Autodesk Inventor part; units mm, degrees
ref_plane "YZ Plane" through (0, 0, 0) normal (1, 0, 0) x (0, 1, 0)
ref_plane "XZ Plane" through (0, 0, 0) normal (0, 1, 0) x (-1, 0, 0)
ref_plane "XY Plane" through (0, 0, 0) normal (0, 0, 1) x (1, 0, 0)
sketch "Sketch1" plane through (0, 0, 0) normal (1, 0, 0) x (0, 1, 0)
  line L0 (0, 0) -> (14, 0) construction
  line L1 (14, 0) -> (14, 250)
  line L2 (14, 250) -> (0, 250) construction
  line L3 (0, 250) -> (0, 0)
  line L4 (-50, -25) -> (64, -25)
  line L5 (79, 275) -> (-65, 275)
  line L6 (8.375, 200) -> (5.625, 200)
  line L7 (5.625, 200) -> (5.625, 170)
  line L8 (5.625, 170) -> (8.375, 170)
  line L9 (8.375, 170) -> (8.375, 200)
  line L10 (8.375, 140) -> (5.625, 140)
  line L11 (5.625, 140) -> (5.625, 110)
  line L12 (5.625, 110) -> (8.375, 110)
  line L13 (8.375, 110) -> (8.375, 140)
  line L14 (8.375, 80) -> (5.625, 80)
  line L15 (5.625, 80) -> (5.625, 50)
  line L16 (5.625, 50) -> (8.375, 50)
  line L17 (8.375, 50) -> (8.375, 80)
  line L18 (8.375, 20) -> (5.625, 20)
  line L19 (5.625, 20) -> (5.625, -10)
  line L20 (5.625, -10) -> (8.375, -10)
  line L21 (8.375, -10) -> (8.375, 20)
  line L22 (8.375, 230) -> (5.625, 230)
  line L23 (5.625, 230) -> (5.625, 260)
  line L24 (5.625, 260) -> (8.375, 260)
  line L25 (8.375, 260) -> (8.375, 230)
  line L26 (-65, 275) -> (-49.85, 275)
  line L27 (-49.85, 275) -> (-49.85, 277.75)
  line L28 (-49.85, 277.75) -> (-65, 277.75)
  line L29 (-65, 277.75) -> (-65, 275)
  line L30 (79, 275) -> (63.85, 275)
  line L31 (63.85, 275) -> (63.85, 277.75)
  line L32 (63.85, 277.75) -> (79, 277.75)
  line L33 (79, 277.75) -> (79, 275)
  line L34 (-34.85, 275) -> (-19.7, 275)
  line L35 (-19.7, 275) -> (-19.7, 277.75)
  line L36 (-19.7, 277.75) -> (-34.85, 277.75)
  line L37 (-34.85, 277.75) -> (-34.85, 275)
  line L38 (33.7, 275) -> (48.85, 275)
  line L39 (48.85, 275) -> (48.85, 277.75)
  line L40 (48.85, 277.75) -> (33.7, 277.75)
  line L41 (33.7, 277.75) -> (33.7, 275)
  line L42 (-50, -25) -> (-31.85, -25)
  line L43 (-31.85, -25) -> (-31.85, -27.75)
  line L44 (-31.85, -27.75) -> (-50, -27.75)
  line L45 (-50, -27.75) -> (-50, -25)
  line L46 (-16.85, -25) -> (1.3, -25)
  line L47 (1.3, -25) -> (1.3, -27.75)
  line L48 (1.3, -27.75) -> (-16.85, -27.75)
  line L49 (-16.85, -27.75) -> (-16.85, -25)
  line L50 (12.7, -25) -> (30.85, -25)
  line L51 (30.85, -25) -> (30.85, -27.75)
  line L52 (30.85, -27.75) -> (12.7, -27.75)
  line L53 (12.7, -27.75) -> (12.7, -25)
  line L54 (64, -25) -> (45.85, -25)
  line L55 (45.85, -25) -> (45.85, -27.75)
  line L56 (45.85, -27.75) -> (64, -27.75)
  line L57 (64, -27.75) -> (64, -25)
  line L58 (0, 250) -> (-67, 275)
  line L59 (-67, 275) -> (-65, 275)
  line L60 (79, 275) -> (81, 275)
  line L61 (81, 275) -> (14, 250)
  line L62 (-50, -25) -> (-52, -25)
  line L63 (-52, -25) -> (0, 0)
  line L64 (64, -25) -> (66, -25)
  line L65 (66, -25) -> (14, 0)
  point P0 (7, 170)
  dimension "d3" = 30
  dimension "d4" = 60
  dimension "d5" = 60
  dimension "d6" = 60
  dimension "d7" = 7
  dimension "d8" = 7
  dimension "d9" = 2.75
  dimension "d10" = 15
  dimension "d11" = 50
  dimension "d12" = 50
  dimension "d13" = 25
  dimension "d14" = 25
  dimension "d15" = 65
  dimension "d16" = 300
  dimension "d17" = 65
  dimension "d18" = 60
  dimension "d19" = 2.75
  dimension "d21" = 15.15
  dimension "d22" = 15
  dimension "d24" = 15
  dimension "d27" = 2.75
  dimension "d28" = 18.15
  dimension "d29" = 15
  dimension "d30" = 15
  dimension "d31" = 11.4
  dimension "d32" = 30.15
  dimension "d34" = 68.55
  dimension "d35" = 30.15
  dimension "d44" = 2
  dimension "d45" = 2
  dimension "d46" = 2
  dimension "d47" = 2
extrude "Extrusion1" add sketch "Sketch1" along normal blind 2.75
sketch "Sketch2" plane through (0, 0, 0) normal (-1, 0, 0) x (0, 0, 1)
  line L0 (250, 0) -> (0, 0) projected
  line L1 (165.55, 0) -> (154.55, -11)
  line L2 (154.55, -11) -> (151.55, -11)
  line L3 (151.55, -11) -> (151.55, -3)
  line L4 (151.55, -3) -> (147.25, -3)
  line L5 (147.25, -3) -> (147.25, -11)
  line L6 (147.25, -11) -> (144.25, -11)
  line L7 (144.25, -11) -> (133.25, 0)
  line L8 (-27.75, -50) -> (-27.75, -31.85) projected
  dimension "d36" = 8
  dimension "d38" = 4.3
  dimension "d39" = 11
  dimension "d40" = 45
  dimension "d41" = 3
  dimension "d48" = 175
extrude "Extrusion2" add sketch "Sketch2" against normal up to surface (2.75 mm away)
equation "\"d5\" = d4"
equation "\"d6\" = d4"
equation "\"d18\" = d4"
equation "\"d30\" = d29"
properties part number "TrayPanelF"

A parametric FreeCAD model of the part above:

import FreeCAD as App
import Part
import Sketcher
from FreeCAD import Vector

doc = App.newDocument("Part")
body = doc.addObject("PartDesign::Body", "Body")

sketch1 = body.newObject("Sketcher::SketchObject", "Sketch")
sketch1.AttachmentSupport = (doc.getObject("YZ_Plane"), [""])
sketch1.MapMode = "FlatFace"
sketch1.addGeometry([
    Part.LineSegment(Vector(66, -25, 0), Vector(14, 0, 0)),
    Part.LineSegment(Vector(14, 0, 0), Vector(14, 250, 0)),
    Part.LineSegment(Vector(14, 250, 0), Vector(81, 275, 0)),
    Part.LineSegment(Vector(81, 275, 0), Vector(79, 275, 0)),
    Part.LineSegment(Vector(79, 275, 0), Vector(79, 277.8, 0)),
    Part.LineSegment(Vector(79, 277.8, 0), Vector(63.9, 277.8, 0)),
    Part.LineSegment(Vector(63.9, 277.8, 0), Vector(63.9, 275, 0)),
    Part.LineSegment(Vector(63.9, 275, 0), Vector(48.9, 275, 0)),
    Part.LineSegment(Vector(48.9, 275, 0), Vector(48.9, 277.8, 0)),
    Part.LineSegment(Vector(48.9, 277.8, 0), Vector(33.7, 277.8, 0)),
    Part.LineSegment(Vector(33.7, 277.8, 0), Vector(33.7, 275, 0)),
    Part.LineSegment(Vector(33.7, 275, 0), Vector(-19.7, 275, 0)),
    Part.LineSegment(Vector(-19.7, 275, 0), Vector(-19.7, 277.8, 0)),
    Part.LineSegment(Vector(-19.7, 277.8, 0), Vector(-34.9, 277.8, 0)),
    Part.LineSegment(Vector(-34.9, 277.8, 0), Vector(-34.9, 275, 0)),
    Part.LineSegment(Vector(-34.9, 275, 0), Vector(-49.9, 275, 0)),
    Part.LineSegment(Vector(-49.9, 275, 0), Vector(-49.9, 277.8, 0)),
    Part.LineSegment(Vector(-49.9, 277.8, 0), Vector(-65, 277.8, 0)),
    Part.LineSegment(Vector(-65, 277.8, 0), Vector(-65, 275, 0)),
    Part.LineSegment(Vector(-65, 275, 0), Vector(-67, 275, 0)),
    Part.LineSegment(Vector(-67, 275, 0), Vector(0, 250, 0)),
    Part.LineSegment(Vector(0, 250, 0), Vector(0, 0, 0)),
    Part.LineSegment(Vector(0, 0, 0), Vector(-52, -25, 0)),
    Part.LineSegment(Vector(-52, -25, 0), Vector(-50, -25, 0)),
    Part.LineSegment(Vector(-50, -25, 0), Vector(-50, -27.8, 0)),
    Part.LineSegment(Vector(-50, -27.8, 0), Vector(-31.9, -27.8, 0)),
    Part.LineSegment(Vector(-31.9, -27.8, 0), Vector(-31.9, -25, 0)),
    Part.LineSegment(Vector(-31.9, -25, 0), Vector(-16.9, -25, 0)),
    Part.LineSegment(Vector(-16.9, -25, 0), Vector(-16.9, -27.8, 0)),
    Part.LineSegment(Vector(-16.9, -27.8, 0), Vector(1.3, -27.8, 0)),
    Part.LineSegment(Vector(1.3, -27.8, 0), Vector(1.3, -25, 0)),
    Part.LineSegment(Vector(1.3, -25, 0), Vector(12.7, -25, 0)),
    Part.LineSegment(Vector(12.7, -25, 0), Vector(12.7, -27.8, 0)),
    Part.LineSegment(Vector(12.7, -27.8, 0), Vector(30.9, -27.8, 0)),
    Part.LineSegment(Vector(30.9, -27.8, 0), Vector(30.9, -25, 0)),
    Part.LineSegment(Vector(30.9, -25, 0), Vector(45.9, -25, 0)),
    Part.LineSegment(Vector(45.9, -25, 0), Vector(45.9, -27.8, 0)),
    Part.LineSegment(Vector(45.9, -27.8, 0), Vector(64, -27.8, 0)),
    Part.LineSegment(Vector(64, -27.8, 0), Vector(64, -25, 0)),
    Part.LineSegment(Vector(64, -25, 0), Vector(66, -25, 0)),
    Part.LineSegment(Vector(5.6, 20, 0), Vector(8.4, 20, 0)),
    Part.LineSegment(Vector(8.4, 20, 0), Vector(8.4, -10, 0)),
    Part.LineSegment(Vector(8.4, -10, 0), Vector(5.6, -10, 0)),
    Part.LineSegment(Vector(5.6, -10, 0), Vector(5.6, 20, 0)),
    Part.LineSegment(Vector(5.6, 80, 0), Vector(8.4, 80, 0)),
    Part.LineSegment(Vector(8.4, 80, 0), Vector(8.4, 50, 0)),
    Part.LineSegment(Vector(8.4, 50, 0), Vector(5.6, 50, 0)),
    Part.LineSegment(Vector(5.6, 50, 0), Vector(5.6, 80, 0)),
    Part.LineSegment(Vector(5.6, 140, 0), Vector(8.4, 140, 0)),
    Part.LineSegment(Vector(8.4, 140, 0), Vector(8.4, 110, 0)),
    Part.LineSegment(Vector(8.4, 110, 0), Vector(5.6, 110, 0)),
    Part.LineSegment(Vector(5.6, 110, 0), Vector(5.6, 140, 0)),
    Part.LineSegment(Vector(5.6, 200, 0), Vector(8.4, 200, 0)),
    Part.LineSegment(Vector(8.4, 200, 0), Vector(8.4, 170, 0)),
    Part.LineSegment(Vector(8.4, 170, 0), Vector(5.6, 170, 0)),
    Part.LineSegment(Vector(5.6, 170, 0), Vector(5.6, 200, 0)),
    Part.LineSegment(Vector(8.4, 260, 0), Vector(8.4, 230, 0)),
    Part.LineSegment(Vector(8.4, 230, 0), Vector(5.6, 230, 0)),
    Part.LineSegment(Vector(5.6, 230, 0), Vector(5.6, 260, 0)),
    Part.LineSegment(Vector(5.6, 260, 0), Vector(8.4, 260, 0)),
], False)
sketch1.addConstraint([
    Sketcher.Constraint("Coincident", 0, 2, 1, 1),
    Sketcher.Constraint("Coincident", 1, 2, 2, 1),
    Sketcher.Constraint("Coincident", 2, 2, 3, 1),
    Sketcher.Constraint("Coincident", 3, 2, 4, 1),
    Sketcher.Constraint("Coincident", 4, 2, 5, 1),
    Sketcher.Constraint("Coincident", 5, 2, 6, 1),
    Sketcher.Constraint("Coincident", 6, 2, 7, 1),
    Sketcher.Constraint("Coincident", 7, 2, 8, 1),
    Sketcher.Constraint("Coincident", 8, 2, 9, 1),
    Sketcher.Constraint("Coincident", 9, 2, 10, 1),
    Sketcher.Constraint("Coincident", 10, 2, 11, 1),
    Sketcher.Constraint("Coincident", 11, 2, 12, 1),
    Sketcher.Constraint("Coincident", 12, 2, 13, 1),
    Sketcher.Constraint("Coincident", 13, 2, 14, 1),
    Sketcher.Constraint("Coincident", 14, 2, 15, 1),
    Sketcher.Constraint("Coincident", 15, 2, 16, 1),
    Sketcher.Constraint("Coincident", 16, 2, 17, 1),
    Sketcher.Constraint("Coincident", 17, 2, 18, 1),
    Sketcher.Constraint("Coincident", 18, 2, 19, 1),
    Sketcher.Constraint("Coincident", 19, 2, 20, 1),
    Sketcher.Constraint("Coincident", 20, 2, 21, 1),
    Sketcher.Constraint("Coincident", 21, 2, 22, 1),
    Sketcher.Constraint("Coincident", 22, 2, 23, 1),
    Sketcher.Constraint("Coincident", 23, 2, 24, 1),
    Sketcher.Constraint("Coincident", 24, 2, 25, 1),
    Sketcher.Constraint("Coincident", 25, 2, 26, 1),
    Sketcher.Constraint("Coincident", 26, 2, 27, 1),
    Sketcher.Constraint("Coincident", 27, 2, 28, 1),
    Sketcher.Constraint("Coincident", 28, 2, 29, 1),
    Sketcher.Constraint("Coincident", 29, 2, 30, 1),
    Sketcher.Constraint("Coincident", 30, 2, 31, 1),
    Sketcher.Constraint("Coincident", 31, 2, 32, 1),
    Sketcher.Constraint("Coincident", 32, 2, 33, 1),
    Sketcher.Constraint("Coincident", 33, 2, 34, 1),
    Sketcher.Constraint("Coincident", 34, 2, 35, 1),
    Sketcher.Constraint("Coincident", 35, 2, 36, 1),
    Sketcher.Constraint("Coincident", 36, 2, 37, 1),
    Sketcher.Constraint("Coincident", 37, 2, 38, 1),
    Sketcher.Constraint("Coincident", 38, 2, 39, 1),
    Sketcher.Constraint("Coincident", 39, 2, 0, 1),
    Sketcher.Constraint("Coincident", 40, 2, 41, 1),
    Sketcher.Constraint("Coincident", 41, 2, 42, 1),
    Sketcher.Constraint("Coincident", 42, 2, 43, 1),
    Sketcher.Constraint("Coincident", 43, 2, 40, 1),
    Sketcher.Constraint("Coincident", 44, 2, 45, 1),
    Sketcher.Constraint("Coincident", 45, 2, 46, 1),
    Sketcher.Constraint("Coincident", 46, 2, 47, 1),
    Sketcher.Constraint("Coincident", 47, 2, 44, 1),
    Sketcher.Constraint("Coincident", 48, 2, 49, 1),
    Sketcher.Constraint("Coincident", 49, 2, 50, 1),
    Sketcher.Constraint("Coincident", 50, 2, 51, 1),
    Sketcher.Constraint("Coincident", 51, 2, 48, 1),
    Sketcher.Constraint("Coincident", 52, 2, 53, 1),
    Sketcher.Constraint("Coincident", 53, 2, 54, 1),
    Sketcher.Constraint("Coincident", 54, 2, 55, 1),
    Sketcher.Constraint("Coincident", 55, 2, 52, 1),
    Sketcher.Constraint("Coincident", 56, 2, 57, 1),
    Sketcher.Constraint("Coincident", 57, 2, 58, 1),
    Sketcher.Constraint("Coincident", 58, 2, 59, 1),
    Sketcher.Constraint("Coincident", 59, 2, 56, 1),
    Sketcher.Constraint("Vertical", 1),
    Sketcher.Constraint("Horizontal", 3),
    Sketcher.Constraint("Vertical", 4),
    Sketcher.Constraint("Horizontal", 5),
    Sketcher.Constraint("Vertical", 6),
    Sketcher.Constraint("Horizontal", 7),
    Sketcher.Constraint("Vertical", 8),
    Sketcher.Constraint("Horizontal", 9),
    Sketcher.Constraint("Vertical", 10),
    Sketcher.Constraint("Horizontal", 11),
    Sketcher.Constraint("Vertical", 12),
    Sketcher.Constraint("Horizontal", 13),
    Sketcher.Constraint("Vertical", 14),
    Sketcher.Constraint("Horizontal", 15),
    Sketcher.Constraint("Vertical", 16),
    Sketcher.Constraint("Horizontal", 17),
    Sketcher.Constraint("Vertical", 18),
    Sketcher.Constraint("Horizontal", 19),
    Sketcher.Constraint("Vertical", 21),
    Sketcher.Constraint("Horizontal", 23),
    Sketcher.Constraint("Vertical", 24),
    Sketcher.Constraint("Horizontal", 25),
    Sketcher.Constraint("Vertical", 26),
    Sketcher.Constraint("Horizontal", 27),
    Sketcher.Constraint("Vertical", 28),
    Sketcher.Constraint("Horizontal", 29),
    Sketcher.Constraint("Vertical", 30),
    Sketcher.Constraint("Horizontal", 31),
    Sketcher.Constraint("Vertical", 32),
    Sketcher.Constraint("Horizontal", 33),
    Sketcher.Constraint("Vertical", 34),
    Sketcher.Constraint("Horizontal", 35),
    Sketcher.Constraint("Vertical", 36),
    Sketcher.Constraint("Horizontal", 37),
    Sketcher.Constraint("Vertical", 38),
    Sketcher.Constraint("Horizontal", 39),
    Sketcher.Constraint("Horizontal", 40),
    Sketcher.Constraint("Vertical", 41),
    Sketcher.Constraint("Horizontal", 42),
    Sketcher.Constraint("Vertical", 43),
    Sketcher.Constraint("Horizontal", 44),
    Sketcher.Constraint("Vertical", 45),
    Sketcher.Constraint("Horizontal", 46),
    Sketcher.Constraint("Vertical", 47),
    Sketcher.Constraint("Horizontal", 48),
    Sketcher.Constraint("Vertical", 49),
    Sketcher.Constraint("Horizontal", 50),
    Sketcher.Constraint("Vertical", 51),
    Sketcher.Constraint("Horizontal", 52),
    Sketcher.Constraint("Vertical", 53),
    Sketcher.Constraint("Horizontal", 54),
    Sketcher.Constraint("Vertical", 55),
    Sketcher.Constraint("Vertical", 56),
    Sketcher.Constraint("Horizontal", 57),
    Sketcher.Constraint("Vertical", 58),
    Sketcher.Constraint("Horizontal", 59),
    Sketcher.Constraint("Coincident", 21, 2, -1, 1),
    Sketcher.Constraint("PointOnObject", 0, 2, -1),
    Sketcher.Constraint("Horizontal", 3, 2, 6, 2),
    Sketcher.Constraint("Horizontal", 5, 2, 8, 2),
    Sketcher.Constraint("Horizontal", 7, 2, 10, 2),
    Sketcher.Constraint("Horizontal", 9, 2, 12, 2),
    Sketcher.Constraint("Horizontal", 11, 2, 14, 2),
    Sketcher.Constraint("Horizontal", 13, 2, 16, 2),
    Sketcher.Constraint("Horizontal", 15, 2, 18, 2),
    Sketcher.Constraint("Horizontal", 1, 2, 20, 2),
    Sketcher.Constraint("Horizontal", 23, 2, 26, 2),
    Sketcher.Constraint("Horizontal", 25, 2, 28, 2),
    Sketcher.Constraint("Horizontal", 27, 2, 30, 2),
    Sketcher.Constraint("Horizontal", 29, 2, 32, 2),
    Sketcher.Constraint("Horizontal", 31, 2, 34, 2),
    Sketcher.Constraint("Horizontal", 33, 2, 36, 2),
    Sketcher.Constraint("Horizontal", 35, 2, 38, 2),
    Sketcher.Constraint("Vertical", 41, 2, 44, 2),
    Sketcher.Constraint("Vertical", 43, 2, 46, 2),
    Sketcher.Constraint("Vertical", 45, 2, 48, 2),
    Sketcher.Constraint("Vertical", 47, 2, 50, 2),
    Sketcher.Constraint("Vertical", 49, 2, 52, 2),
    Sketcher.Constraint("Vertical", 51, 2, 54, 2),
    Sketcher.Constraint("Vertical", 53, 2, 56, 2),
    Sketcher.Constraint("Vertical", 55, 2, 57, 2),
    Sketcher.Constraint("Equal", 5, 9),
    Sketcher.Constraint("Equal", 9, 13),
    Sketcher.Constraint("Equal", 7, 15),
    Sketcher.Constraint("Equal", 13, 17),
    Sketcher.Constraint("Equal", 3, 19),
    Sketcher.Constraint("Equal", 19, 23),
    Sketcher.Constraint("Equal", 15, 27),
    Sketcher.Constraint("Equal", 25, 29),
    Sketcher.Constraint("Equal", 29, 33),
    Sketcher.Constraint("Equal", 27, 35),
    Sketcher.Constraint("Equal", 33, 37),
    Sketcher.Constraint("Equal", 23, 39),
    Sketcher.Constraint("Equal", 59, 4),
    Sketcher.Constraint("Equal", 18, 24),
    Sketcher.Constraint("Equal", 43, 45),
    Sketcher.Constraint("Equal", 47, 49),
    Sketcher.Constraint("Equal", 51, 53),
    Sketcher.Constraint("Equal", 55, 56),
    Sketcher.Constraint("Equal", 2, 20),
    Sketcher.Constraint("Equal", 0, 22),
    Sketcher.Constraint("DistanceX", 3, 2, 3, 1, 2.0),
    Sketcher.Constraint("DistanceX", 7, 2, 7, 1, 15.0),
    Sketcher.Constraint("DistanceY", 41, 2, 41, 1, 30.0),
    Sketcher.Constraint("DistanceX", 31, 1, 31, 2, 11.4),
    Sketcher.Constraint("DistanceX", 17, 2, -1, 1, 65.0),
    Sketcher.Constraint("DistanceY", 22, 2, -1, 1, 25.0),
    Sketcher.Constraint("DistanceX", 23, 2, -1, 1, 50.0),
    Sketcher.Constraint("DistanceY", -1, 1, 45, 2, 50.0),
    Sketcher.Constraint("DistanceY", 1, 2, 2, 2, 25.0),
    Sketcher.Constraint("DistanceY", 22, 2, 15, 2, 300.0),
    Sketcher.Constraint("DistanceY", 31, 2, 41, 2, 15.0),
    Sketcher.Constraint("DistanceY", 44, 2, 48, 2, 60.0),
    Sketcher.Constraint("DistanceY", 52, 2, 1, 2, 50.0),
    Sketcher.Constraint("DistanceY", 52, 2, 56, 2, 30.0),
    Sketcher.Constraint("DistanceX", 5, 2, 5, 1, 15.15),
    Sketcher.Constraint("DistanceX", 25, 1, 25, 2, 18.15),
    Sketcher.Constraint("DistanceX", 40, 1, 40, 2, 2.75),
    Sketcher.Constraint("DistanceX", -1, 1, 40, 2, 8.375),
])
pad1 = body.newObject("PartDesign::Pad", "Pad")
pad1.Profile = sketch1
pad1.Length = 2.75

sketch2 = body.newObject("Sketcher::SketchObject", "Sketch001")
sketch2.AttachmentSupport = (doc.getObject("YZ_Plane"), [""])
sketch2.MapMode = "FlatFace"
sketch2.addGeometry([
    Part.LineSegment(Vector(-11, 154.6, 0), Vector(0, 165.6, 0)),
    Part.LineSegment(Vector(0, 165.6, 0), Vector(0, 133.2, 0)),
    Part.LineSegment(Vector(0, 133.2, 0), Vector(-11, 144.2, 0)),
    Part.LineSegment(Vector(-11, 144.2, 0), Vector(-11, 147.2, 0)),
    Part.LineSegment(Vector(-11, 147.2, 0), Vector(-3, 147.2, 0)),
    Part.LineSegment(Vector(-3, 147.2, 0), Vector(-3, 151.6, 0)),
    Part.LineSegment(Vector(-3, 151.6, 0), Vector(-11, 151.6, 0)),
    Part.LineSegment(Vector(-11, 151.6, 0), Vector(-11, 154.6, 0)),
], False)
sketch2.addConstraint([
    Sketcher.Constraint("Coincident", 0, 2, 1, 1),
    Sketcher.Constraint("Coincident", 1, 2, 2, 1),
    Sketcher.Constraint("Coincident", 2, 2, 3, 1),
    Sketcher.Constraint("Coincident", 3, 2, 4, 1),
    Sketcher.Constraint("Coincident", 4, 2, 5, 1),
    Sketcher.Constraint("Coincident", 5, 2, 6, 1),
    Sketcher.Constraint("Coincident", 6, 2, 7, 1),
    Sketcher.Constraint("Coincident", 7, 2, 0, 1),
    Sketcher.Constraint("Vertical", 1),
    Sketcher.Constraint("Vertical", 3),
    Sketcher.Constraint("Horizontal", 4),
    Sketcher.Constraint("Vertical", 5),
    Sketcher.Constraint("Horizontal", 6),
    Sketcher.Constraint("Vertical", 7),
    Sketcher.Constraint("PointOnObject", 0, 2, -2),
    Sketcher.Constraint("Perpendicular", 0, 2),
    Sketcher.Constraint("Vertical", 3, 2, 6, 2),
    Sketcher.Constraint("Equal", 3, 7),
    Sketcher.Constraint("Equal", 0, 2),
    Sketcher.Constraint("DistanceX", 4, 1, 4, 2, 8.0),
    Sketcher.Constraint("DistanceY", 3, 1, 3, 2, 3.0),
    Sketcher.Constraint("DistanceY", 5, 1, 5, 2, 4.3),
    Sketcher.Constraint("DistanceX", 2, 2, -1, 1, 11.0),
    Sketcher.Constraint("DistanceY", -1, 1, 0, 2, 165.55),
])
pad2 = body.newObject("PartDesign::Pad", "Pad001")
pad2.Profile = sketch2
pad2.Length = 2.75

doc.recompute()
